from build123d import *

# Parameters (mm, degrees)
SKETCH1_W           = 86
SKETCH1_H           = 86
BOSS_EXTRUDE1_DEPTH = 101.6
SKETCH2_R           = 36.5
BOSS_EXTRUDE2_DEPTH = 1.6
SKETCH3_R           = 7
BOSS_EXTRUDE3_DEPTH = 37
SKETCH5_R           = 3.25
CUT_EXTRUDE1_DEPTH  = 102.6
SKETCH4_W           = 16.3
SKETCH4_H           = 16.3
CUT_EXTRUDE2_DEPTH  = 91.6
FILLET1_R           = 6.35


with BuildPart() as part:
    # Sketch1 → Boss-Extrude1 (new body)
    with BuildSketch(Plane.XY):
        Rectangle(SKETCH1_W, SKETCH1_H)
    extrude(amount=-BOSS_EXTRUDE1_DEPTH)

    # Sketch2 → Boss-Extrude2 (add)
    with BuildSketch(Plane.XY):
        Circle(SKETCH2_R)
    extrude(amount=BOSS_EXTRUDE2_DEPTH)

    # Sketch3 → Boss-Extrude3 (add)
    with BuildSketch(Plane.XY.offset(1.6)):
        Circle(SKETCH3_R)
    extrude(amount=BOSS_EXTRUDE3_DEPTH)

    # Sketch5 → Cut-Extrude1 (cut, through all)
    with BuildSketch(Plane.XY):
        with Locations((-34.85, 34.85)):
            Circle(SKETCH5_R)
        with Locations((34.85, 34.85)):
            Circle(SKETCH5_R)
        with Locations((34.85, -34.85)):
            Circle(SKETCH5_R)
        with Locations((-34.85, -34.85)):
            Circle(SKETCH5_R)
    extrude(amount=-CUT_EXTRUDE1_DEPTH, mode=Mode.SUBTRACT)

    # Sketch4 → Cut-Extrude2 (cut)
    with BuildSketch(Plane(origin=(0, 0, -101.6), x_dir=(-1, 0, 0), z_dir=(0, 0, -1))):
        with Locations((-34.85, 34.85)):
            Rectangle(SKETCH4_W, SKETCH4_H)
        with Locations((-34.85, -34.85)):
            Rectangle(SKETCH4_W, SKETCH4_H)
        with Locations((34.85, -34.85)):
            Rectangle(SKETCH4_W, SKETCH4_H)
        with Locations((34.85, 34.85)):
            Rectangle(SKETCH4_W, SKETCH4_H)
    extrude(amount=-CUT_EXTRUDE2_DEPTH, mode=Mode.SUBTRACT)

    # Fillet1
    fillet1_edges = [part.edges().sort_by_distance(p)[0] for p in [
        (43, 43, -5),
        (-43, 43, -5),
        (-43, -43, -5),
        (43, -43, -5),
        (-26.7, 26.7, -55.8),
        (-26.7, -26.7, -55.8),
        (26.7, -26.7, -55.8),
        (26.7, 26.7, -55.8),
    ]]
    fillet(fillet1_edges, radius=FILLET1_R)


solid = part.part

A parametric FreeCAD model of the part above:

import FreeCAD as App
import Part
import Sketcher

V = App.Vector


def edges_at(feature, points):
    """Names of the edges that pass closest to the given points."""
    edges = feature.Shape.Edges
    near = lambda p: min(range(len(edges)), key=lambda i: edges[i].distToShape(Part.Vertex(*p))[0])
    return sorted({f"Edge{near(p) + 1}" for p in points})

doc = App.newDocument("Part")
body = doc.addObject("PartDesign::Body", "Body")

# Sketch on XY plane
sketch1 = doc.addObject("Sketcher::SketchObject", "Sketch")
body.addObject(sketch1)
sketch1.AttachmentSupport = (doc.XY_Plane, [""])
sketch1.MapMode = "FlatFace"
sketch1.addGeometry(Part.LineSegment(V(-43, 43, 0), V(-43, -43, 0)), False)
sketch1.addGeometry(Part.LineSegment(V(-43, -43, 0), V(43, -43, 0)), False)
sketch1.addGeometry(Part.LineSegment(V(43, -43, 0), V(43, 43, 0)), False)
sketch1.addGeometry(Part.LineSegment(V(43, 43, 0), V(-43, 43, 0)), False)
sketch1.addConstraint(Sketcher.Constraint("Coincident", 0, 2, 1, 1))
sketch1.addConstraint(Sketcher.Constraint("Coincident", 1, 2, 2, 1))
sketch1.addConstraint(Sketcher.Constraint("Coincident", 2, 2, 3, 1))
sketch1.addConstraint(Sketcher.Constraint("Coincident", 3, 2, 0, 1))
sketch1.addConstraint(Sketcher.Constraint("Vertical", 0))
sketch1.addConstraint(Sketcher.Constraint("Horizontal", 1))
sketch1.addConstraint(Sketcher.Constraint("Vertical", 2))
sketch1.addConstraint(Sketcher.Constraint("Horizontal", 3))
sketch1.addConstraint(Sketcher.Constraint("Symmetric", 0, 2, 2, 2, -1, 1))
sketch1.addConstraint(Sketcher.Constraint("Equal", 3, 0))
sketch1.addConstraint(Sketcher.Constraint("DistanceX", 1, 1, 1, 2, 86.0))
pad1 = doc.addObject("PartDesign::Pad", "Pad")
body.addObject(pad1)
pad1.Profile = sketch1
pad1.Length = 101.6
pad1.Reversed = True

# Sketch on XY plane
sketch2 = doc.addObject("Sketcher::SketchObject", "Sketch001")
body.addObject(sketch2)
sketch2.AttachmentSupport = (doc.XY_Plane, [""])
sketch2.MapMode = "FlatFace"
sketch2.addGeometry(Part.Circle(V(0, 0, 0), V(0, 0, 1), 36), False)
sketch2.addConstraint(Sketcher.Constraint("Coincident", 0, 3, -1, 1))
sketch2.addConstraint(Sketcher.Constraint("Diameter", 0, 73.0))
pad2 = doc.addObject("PartDesign::Pad", "Pad001")
body.addObject(pad2)
pad2.Profile = sketch2
pad2.Length = 1.6

# Sketch on XY plane
sketch3 = doc.addObject("Sketcher::SketchObject", "Sketch002")
body.addObject(sketch3)
sketch3.AttachmentSupport = (doc.XY_Plane, [""])
sketch3.MapMode = "FlatFace"
sketch3.AttachmentOffset = App.Placement(V(0, 0, 1.6), App.Rotation())
sketch3.addGeometry(Part.Circle(V(0, 0, 0), V(0, 0, 1), 7), False)
sketch3.addConstraint(Sketcher.Constraint("Coincident", 0, 3, -1, 1))
sketch3.addConstraint(Sketcher.Constraint("Diameter", 0, 14.0))
pad3 = doc.addObject("PartDesign::Pad", "Pad002")
body.addObject(pad3)
pad3.Profile = sketch3
pad3.Length = 37

# Sketch on XY plane
sketch4 = doc.addObject("Sketcher::SketchObject", "Sketch003")
body.addObject(sketch4)
sketch4.AttachmentSupport = (doc.XY_Plane, [""])
sketch4.MapMode = "FlatFace"
sketch4.addGeometry(Part.Circle(V(-34.9, 34.9, 0), V(0, 0, 1), 3.2), False)
sketch4.addGeometry(Part.Circle(V(34.9, 34.9, 0), V(0, 0, 1), 3.2), False)
sketch4.addGeometry(Part.Circle(V(34.9, -34.9, 0), V(0, 0, 1), 3.2), False)
sketch4.addGeometry(Part.Circle(V(-34.9, -34.9, 0), V(0, 0, 1), 3.2), False)
sketch4.addConstraint(Sketcher.Constraint("Equal", 0, 1))
sketch4.addConstraint(Sketcher.Constraint("Equal", 1, 2))
sketch4.addConstraint(Sketcher.Constraint("Equal", 2, 3))
sketch4.addConstraint(Sketcher.Constraint("Symmetric", 0, 3, 2, 3, -1, 1))
sketch4.addConstraint(Sketcher.Constraint("Symmetric", 1, 3, 3, 3, -1, 1))
sketch4.addConstraint(Sketcher.Constraint("Symmetric", 0, 3, 1, 3, -2))
sketch4.addConstraint(Sketcher.Constraint("Diameter", 0, 6.5))
sketch4.addConstraint(Sketcher.Constraint("DistanceX", 0, 3, 1, 3, 69.7))
sketch4.addConstraint(Sketcher.Constraint("DistanceY", 2, 3, 1, 3, 69.7))
pocket1 = doc.addObject("PartDesign::Pocket", "Pocket")
body.addObject(pocket1)
pocket1.Profile = sketch4
pocket1.Type = "ThroughAll"

# Sketch on XY plane
sketch5 = doc.addObject("Sketcher::SketchObject", "Sketch004")
body.addObject(sketch5)
sketch5.AttachmentSupport = (doc.XY_Plane, [""])
sketch5.MapMode = "FlatFace"
sketch5.AttachmentOffset = App.Placement(V(0, 0, -101.6), App.Rotation())
sketch5.addGeometry(Part.LineSegment(V(43, 43, 0), V(43, 27, 0)), False)
sketch5.addGeometry(Part.LineSegment(V(43, 27, 0), V(27, 27, 0)), False)
sketch5.addGeometry(Part.LineSegment(V(27, 27, 0), V(27, 43, 0)), False)
sketch5.addGeometry(Part.LineSegment(V(27, 43, 0), V(43, 43, 0)), False)
sketch5.addGeometry(Part.LineSegment(V(43, -27, 0), V(43, -43, 0)), False)
sketch5.addGeometry(Part.LineSegment(V(43, -43, 0), V(27, -43, 0)), False)
sketch5.addGeometry(Part.LineSegment(V(27, -43, 0), V(27, -27, 0)), False)
sketch5.addGeometry(Part.LineSegment(V(27, -27, 0), V(43, -27, 0)), False)
sketch5.addGeometry(Part.LineSegment(V(-27, -27, 0), V(-27, -43, 0)), False)
sketch5.addGeometry(Part.LineSegment(V(-27, -43, 0), V(-43, -43, 0)), False)
sketch5.addGeometry(Part.LineSegment(V(-43, -43, 0), V(-43, -27, 0)), False)
sketch5.addGeometry(Part.LineSegment(V(-43, -27, 0), V(-27, -27, 0)), False)
sketch5.addGeometry(Part.LineSegment(V(-27, 43, 0), V(-27, 27, 0)), False)
sketch5.addGeometry(Part.LineSegment(V(-27, 27, 0), V(-43, 27, 0)), False)
sketch5.addGeometry(Part.LineSegment(V(-43, 27, 0), V(-43, 43, 0)), False)
sketch5.addGeometry(Part.LineSegment(V(-43, 43, 0), V(-27, 43, 0)), False)
sketch5.addConstraint(Sketcher.Constraint("Coincident", 0, 2, 1, 1))
sketch5.addConstraint(Sketcher.Constraint("Coincident", 1, 2, 2, 1))
sketch5.addConstraint(Sketcher.Constraint("Coincident", 2, 2, 3, 1))
sketch5.addConstraint(Sketcher.Constraint("Coincident", 3, 2, 0, 1))
sketch5.addConstraint(Sketcher.Constraint("Coincident", 4, 2, 5, 1))
sketch5.addConstraint(Sketcher.Constraint("Coincident", 5, 2, 6, 1))
sketch5.addConstraint(Sketcher.Constraint("Coincident", 6, 2, 7, 1))
sketch5.addConstraint(Sketcher.Constraint("Coincident", 7, 2, 4, 1))
sketch5.addConstraint(Sketcher.Constraint("Coincident", 8, 2, 9, 1))
sketch5.addConstraint(Sketcher.Constraint("Coincident", 9, 2, 10, 1))
sketch5.addConstraint(Sketcher.Constraint("Coincident", 10, 2, 11, 1))
sketch5.addConstraint(Sketcher.Constraint("Coincident", 11, 2, 8, 1))
sketch5.addConstraint(Sketcher.Constraint("Coincident", 12, 2, 13, 1))
sketch5.addConstraint(Sketcher.Constraint("Coincident", 13, 2, 14, 1))
sketch5.addConstraint(Sketcher.Constraint("Coincident", 14, 2, 15, 1))
sketch5.addConstraint(Sketcher.Constraint("Coincident", 15, 2, 12, 1))
sketch5.addConstraint(Sketcher.Constraint("Vertical", 0))
sketch5.addConstraint(Sketcher.Constraint("Horizontal", 1))
sketch5.addConstraint(Sketcher.Constraint("Vertical", 2))
sketch5.addConstraint(Sketcher.Constraint("Horizontal", 3))
sketch5.addConstraint(Sketcher.Constraint("Vertical", 4))
sketch5.addConstraint(Sketcher.Constraint("Horizontal", 5))
sketch5.addConstraint(Sketcher.Constraint("Vertical", 6))
sketch5.addConstraint(Sketcher.Constraint("Horizontal", 7))
sketch5.addConstraint(Sketcher.Constraint("Vertical", 8))
sketch5.addConstraint(Sketcher.Constraint("Horizontal", 9))
sketch5.addConstraint(Sketcher.Constraint("Vertical", 10))
sketch5.addConstraint(Sketcher.Constraint("Horizontal", 11))
sketch5.addConstraint(Sketcher.Constraint("Vertical", 12))
sketch5.addConstraint(Sketcher.Constraint("Horizontal", 13))
sketch5.addConstraint(Sketcher.Constraint("Vertical", 14))
sketch5.addConstraint(Sketcher.Constraint("Horizontal", 15))
sketch5.addConstraint(Sketcher.Constraint("Symmetric", 2, 2, 8, 2, -1, 1))
sketch5.addConstraint(Sketcher.Constraint("Symmetric", 0, 2, 10, 2, -1, 1))
sketch5.addConstraint(Sketcher.Constraint("Symmetric", 6, 2, 12, 2, -1, 1))
sketch5.addConstraint(Sketcher.Constraint("Symmetric", 4, 2, 14, 2, -1, 1))
sketch5.addConstraint(Sketcher.Constraint("Symmetric", 5, 2, 8, 2, -2))
sketch5.addConstraint(Sketcher.Constraint("Symmetric", 7, 2, 10, 2, -2))
sketch5.addConstraint(Sketcher.Constraint("Equal", 15, 0))
sketch5.addConstraint(Sketcher.Constraint("DistanceX", 1, 2, 1, 1, 16.3))
sketch5.addConstraint(Sketcher.Constraint("DistanceX", -1, 1, 0, 2, 43.0))
sketch5.addConstraint(Sketcher.Constraint("DistanceY", -1, 1, 2, 2, 43.0))
pocket2 = doc.addObject("PartDesign::Pocket", "Pocket001")
body.addObject(pocket2)
pocket2.Profile = sketch5
pocket2.Length = 91.6
pocket2.Reversed = True
doc.recompute()

fillet = doc.addObject("PartDesign::Fillet", "Fillet")
body.addObject(fillet)
fillet.Base = (pocket2, edges_at(pocket2, [
    (43, 43, -5),
    (-43, 43, -5),
    (-43, -43, -5),
    (43, -43, -5),
    (-26.7, 26.7, -55.8),
    (-26.7, -26.7, -55.8),
    (26.7, -26.7, -55.8),
    (26.7, 26.7, -55.8),
]))
fillet.Radius = 6.35

doc.recompute()
